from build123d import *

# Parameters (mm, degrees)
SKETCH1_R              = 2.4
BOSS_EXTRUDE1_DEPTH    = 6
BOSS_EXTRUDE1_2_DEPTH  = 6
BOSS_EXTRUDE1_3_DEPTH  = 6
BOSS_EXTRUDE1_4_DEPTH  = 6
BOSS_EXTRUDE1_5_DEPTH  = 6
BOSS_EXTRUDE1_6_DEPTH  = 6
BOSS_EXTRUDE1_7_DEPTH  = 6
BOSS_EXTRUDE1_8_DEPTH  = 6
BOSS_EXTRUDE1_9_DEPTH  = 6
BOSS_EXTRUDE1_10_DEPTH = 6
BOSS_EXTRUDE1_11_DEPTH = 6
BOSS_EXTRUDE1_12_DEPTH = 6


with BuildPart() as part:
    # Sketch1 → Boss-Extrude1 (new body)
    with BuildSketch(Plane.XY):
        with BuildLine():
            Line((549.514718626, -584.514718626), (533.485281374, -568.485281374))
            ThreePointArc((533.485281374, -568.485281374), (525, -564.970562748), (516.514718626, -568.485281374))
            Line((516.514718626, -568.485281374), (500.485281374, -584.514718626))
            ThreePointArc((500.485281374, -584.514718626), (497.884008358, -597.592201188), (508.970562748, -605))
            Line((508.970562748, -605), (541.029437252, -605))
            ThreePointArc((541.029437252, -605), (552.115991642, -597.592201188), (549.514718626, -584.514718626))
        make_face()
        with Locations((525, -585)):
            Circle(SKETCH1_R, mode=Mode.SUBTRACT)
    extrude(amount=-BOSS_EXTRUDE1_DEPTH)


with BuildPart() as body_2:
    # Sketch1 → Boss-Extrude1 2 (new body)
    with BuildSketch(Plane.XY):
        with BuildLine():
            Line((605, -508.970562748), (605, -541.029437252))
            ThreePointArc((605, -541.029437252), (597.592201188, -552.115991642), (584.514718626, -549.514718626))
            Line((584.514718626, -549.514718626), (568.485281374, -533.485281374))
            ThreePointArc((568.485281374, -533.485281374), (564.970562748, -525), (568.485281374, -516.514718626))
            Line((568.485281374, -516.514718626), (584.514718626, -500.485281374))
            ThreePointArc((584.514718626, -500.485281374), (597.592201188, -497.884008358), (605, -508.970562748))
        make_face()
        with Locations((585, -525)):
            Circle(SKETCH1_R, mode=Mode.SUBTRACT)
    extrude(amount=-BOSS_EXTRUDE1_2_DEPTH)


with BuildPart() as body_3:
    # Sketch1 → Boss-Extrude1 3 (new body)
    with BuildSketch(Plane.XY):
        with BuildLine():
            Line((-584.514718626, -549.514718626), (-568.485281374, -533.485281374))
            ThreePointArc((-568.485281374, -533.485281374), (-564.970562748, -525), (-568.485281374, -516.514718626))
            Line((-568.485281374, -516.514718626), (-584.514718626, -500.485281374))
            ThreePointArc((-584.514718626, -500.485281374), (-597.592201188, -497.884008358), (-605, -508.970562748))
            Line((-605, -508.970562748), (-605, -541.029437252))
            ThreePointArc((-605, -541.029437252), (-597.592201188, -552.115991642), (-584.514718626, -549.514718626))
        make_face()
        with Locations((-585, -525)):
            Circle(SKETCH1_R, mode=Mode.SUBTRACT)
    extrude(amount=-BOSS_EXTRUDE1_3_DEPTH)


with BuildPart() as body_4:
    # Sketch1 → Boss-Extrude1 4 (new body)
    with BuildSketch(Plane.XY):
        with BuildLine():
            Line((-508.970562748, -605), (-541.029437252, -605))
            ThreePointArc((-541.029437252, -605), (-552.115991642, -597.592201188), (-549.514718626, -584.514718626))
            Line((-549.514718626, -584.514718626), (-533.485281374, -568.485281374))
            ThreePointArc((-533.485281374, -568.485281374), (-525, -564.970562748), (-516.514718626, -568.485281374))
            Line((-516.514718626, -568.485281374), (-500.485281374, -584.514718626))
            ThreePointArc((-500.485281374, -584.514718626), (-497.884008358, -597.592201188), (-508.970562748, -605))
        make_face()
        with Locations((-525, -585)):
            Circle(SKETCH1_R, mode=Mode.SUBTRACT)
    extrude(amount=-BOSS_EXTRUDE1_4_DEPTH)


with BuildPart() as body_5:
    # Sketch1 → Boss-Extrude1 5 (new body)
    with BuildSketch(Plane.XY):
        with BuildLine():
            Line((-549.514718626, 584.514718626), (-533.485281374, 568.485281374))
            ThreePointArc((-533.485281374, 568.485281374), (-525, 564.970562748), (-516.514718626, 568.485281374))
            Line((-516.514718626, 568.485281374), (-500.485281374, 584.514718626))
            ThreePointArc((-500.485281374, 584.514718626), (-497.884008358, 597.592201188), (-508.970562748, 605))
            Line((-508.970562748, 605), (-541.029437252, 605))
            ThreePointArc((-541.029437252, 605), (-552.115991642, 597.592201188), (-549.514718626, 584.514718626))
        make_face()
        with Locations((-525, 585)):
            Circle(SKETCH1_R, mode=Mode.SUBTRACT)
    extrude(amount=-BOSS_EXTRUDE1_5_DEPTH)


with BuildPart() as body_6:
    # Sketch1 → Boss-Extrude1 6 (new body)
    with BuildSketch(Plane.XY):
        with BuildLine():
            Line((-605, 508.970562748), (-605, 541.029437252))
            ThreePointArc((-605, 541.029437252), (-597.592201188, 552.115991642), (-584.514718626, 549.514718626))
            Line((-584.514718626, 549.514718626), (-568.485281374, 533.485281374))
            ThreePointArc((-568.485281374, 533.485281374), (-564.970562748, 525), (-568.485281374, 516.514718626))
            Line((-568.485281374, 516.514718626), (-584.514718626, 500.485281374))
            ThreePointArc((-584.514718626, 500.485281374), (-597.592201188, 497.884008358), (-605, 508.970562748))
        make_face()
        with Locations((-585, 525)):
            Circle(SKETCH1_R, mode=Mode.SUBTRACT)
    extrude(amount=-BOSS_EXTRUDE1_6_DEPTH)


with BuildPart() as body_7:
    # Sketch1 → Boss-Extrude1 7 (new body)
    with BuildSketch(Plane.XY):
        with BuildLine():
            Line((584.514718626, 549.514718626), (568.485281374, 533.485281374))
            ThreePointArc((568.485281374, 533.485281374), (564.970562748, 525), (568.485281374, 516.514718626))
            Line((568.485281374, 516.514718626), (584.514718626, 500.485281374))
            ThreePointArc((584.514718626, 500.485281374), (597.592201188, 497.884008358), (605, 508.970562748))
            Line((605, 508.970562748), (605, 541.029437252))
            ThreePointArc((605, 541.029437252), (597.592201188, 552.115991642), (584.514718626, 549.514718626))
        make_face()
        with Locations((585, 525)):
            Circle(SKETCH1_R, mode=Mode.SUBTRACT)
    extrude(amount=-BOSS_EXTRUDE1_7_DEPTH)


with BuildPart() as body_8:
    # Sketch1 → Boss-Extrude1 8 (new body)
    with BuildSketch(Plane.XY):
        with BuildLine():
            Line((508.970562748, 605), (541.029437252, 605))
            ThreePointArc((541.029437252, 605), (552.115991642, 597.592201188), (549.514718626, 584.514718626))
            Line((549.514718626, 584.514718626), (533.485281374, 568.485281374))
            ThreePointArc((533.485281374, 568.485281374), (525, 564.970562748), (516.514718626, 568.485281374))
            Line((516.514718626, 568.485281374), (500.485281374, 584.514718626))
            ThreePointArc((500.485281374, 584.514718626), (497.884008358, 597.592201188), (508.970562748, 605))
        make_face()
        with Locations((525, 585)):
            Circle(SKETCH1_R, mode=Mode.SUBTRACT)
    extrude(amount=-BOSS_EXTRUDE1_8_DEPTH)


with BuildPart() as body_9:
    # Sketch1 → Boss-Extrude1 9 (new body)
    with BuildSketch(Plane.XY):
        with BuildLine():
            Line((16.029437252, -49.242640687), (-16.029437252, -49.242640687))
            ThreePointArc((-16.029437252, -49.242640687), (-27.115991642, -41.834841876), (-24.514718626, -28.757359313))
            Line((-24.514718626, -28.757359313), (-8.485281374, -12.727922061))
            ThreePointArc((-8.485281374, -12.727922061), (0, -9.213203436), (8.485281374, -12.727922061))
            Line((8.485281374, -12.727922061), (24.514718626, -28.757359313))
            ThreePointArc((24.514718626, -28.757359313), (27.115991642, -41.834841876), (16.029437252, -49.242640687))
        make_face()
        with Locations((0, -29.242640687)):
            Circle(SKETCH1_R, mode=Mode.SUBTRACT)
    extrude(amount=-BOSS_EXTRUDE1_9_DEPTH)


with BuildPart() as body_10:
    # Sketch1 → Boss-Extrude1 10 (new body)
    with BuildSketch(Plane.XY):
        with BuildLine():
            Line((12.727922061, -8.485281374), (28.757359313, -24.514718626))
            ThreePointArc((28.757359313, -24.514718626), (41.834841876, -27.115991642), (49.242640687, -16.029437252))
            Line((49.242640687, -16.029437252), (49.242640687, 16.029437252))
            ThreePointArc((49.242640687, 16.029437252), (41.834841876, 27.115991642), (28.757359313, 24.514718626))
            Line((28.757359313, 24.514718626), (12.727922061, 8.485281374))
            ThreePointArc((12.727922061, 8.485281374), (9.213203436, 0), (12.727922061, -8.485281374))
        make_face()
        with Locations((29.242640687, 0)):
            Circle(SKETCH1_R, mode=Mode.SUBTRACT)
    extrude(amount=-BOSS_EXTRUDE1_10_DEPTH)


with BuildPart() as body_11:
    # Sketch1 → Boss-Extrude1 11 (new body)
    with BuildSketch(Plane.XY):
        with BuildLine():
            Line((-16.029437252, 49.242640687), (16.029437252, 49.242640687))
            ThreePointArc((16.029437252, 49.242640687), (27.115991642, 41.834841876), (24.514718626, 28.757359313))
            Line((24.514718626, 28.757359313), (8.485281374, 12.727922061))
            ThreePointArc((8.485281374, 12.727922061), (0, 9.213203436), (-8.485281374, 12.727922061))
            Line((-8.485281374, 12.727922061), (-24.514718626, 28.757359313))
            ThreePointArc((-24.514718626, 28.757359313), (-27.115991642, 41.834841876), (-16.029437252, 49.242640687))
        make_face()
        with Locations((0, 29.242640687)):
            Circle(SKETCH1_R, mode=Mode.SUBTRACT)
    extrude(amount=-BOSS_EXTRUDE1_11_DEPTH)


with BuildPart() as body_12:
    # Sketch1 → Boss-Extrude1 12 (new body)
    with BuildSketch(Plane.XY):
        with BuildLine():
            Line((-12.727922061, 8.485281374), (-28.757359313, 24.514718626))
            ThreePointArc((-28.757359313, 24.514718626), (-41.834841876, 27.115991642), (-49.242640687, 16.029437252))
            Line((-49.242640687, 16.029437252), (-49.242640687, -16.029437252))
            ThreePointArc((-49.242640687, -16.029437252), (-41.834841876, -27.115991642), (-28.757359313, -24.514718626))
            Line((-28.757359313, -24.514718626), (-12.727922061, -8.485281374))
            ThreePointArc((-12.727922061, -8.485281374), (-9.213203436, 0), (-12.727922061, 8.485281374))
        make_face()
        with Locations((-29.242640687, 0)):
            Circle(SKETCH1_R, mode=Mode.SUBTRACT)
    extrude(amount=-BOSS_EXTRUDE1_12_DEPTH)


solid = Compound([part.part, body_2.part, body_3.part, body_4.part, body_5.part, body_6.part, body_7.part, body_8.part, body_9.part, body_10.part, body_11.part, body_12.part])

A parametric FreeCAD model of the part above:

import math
import FreeCAD as App
import Part
import Sketcher
from FreeCAD import Vector
Q = App.Units.Quantity

doc = App.newDocument("Part")
body = doc.addObject("PartDesign::Body", "Body")

# Sketch on XY plane
sketch1 = doc.addObject("Sketcher::SketchObject", "Sketch")
body.addObject(sketch1)
sketch1.AttachmentSupport = (doc.XY_Plane, [""])
sketch1.MapMode = "FlatFace"
sketch1.addGeometry([
    Part.LineSegment(Vector(549.5, -584.5, 0), Vector(533.5, -568.5, 0)),  # 0
    Part.ArcOfCircle(Part.Circle(Vector(525, -577, 0), Vector(0, 0, 1), 12), math.radians(45), math.radians(135)),  # 1
    Part.LineSegment(Vector(516.5, -568.5, 0), Vector(500.5, -584.5, 0)),  # 2
    Part.ArcOfCircle(Part.Circle(Vector(509, -593, 0), Vector(0, 0, 1), 12), math.radians(135), math.radians(270)),  # 3
    Part.LineSegment(Vector(509, -605, 0), Vector(541, -605, 0)),  # 4
    Part.ArcOfCircle(Part.Circle(Vector(541, -593, 0), Vector(0, 0, 1), 12), math.radians(-90), math.radians(45)),  # 5
    Part.Circle(Vector(525, -585, 0), Vector(0, 0, 1), 2.4),  # 6
], False)
sketch1.addConstraint([
    Sketcher.Constraint("Tangent", 0, 2, 1, 1),
    Sketcher.Constraint("Tangent", 1, 2, 2, 1),
    Sketcher.Constraint("Tangent", 2, 2, 3, 1),
    Sketcher.Constraint("Tangent", 3, 2, 4, 1),
    Sketcher.Constraint("Tangent", 4, 2, 5, 1),
    Sketcher.Constraint("Tangent", 5, 2, 0, 1),
    Sketcher.Constraint("Horizontal", 4),
    Sketcher.Constraint("Equal", 1, 3),
    Sketcher.Constraint("Equal", 3, 5),
    Sketcher.Constraint("Perpendicular", 0, 2),
    Sketcher.Constraint("Horizontal", 0, 2, 1, 2),
    Sketcher.Constraint("Vertical", 1, 3, 6, 3),
    Sketcher.Constraint("Radius", 1, Q("12 mm")),
    Sketcher.Constraint("Diameter", 6, Q("4.8 mm")),
    Sketcher.Constraint("DistanceX", -1, 1, 1, 3, Q("525 mm")),
    Sketcher.Constraint("DistanceY", 3, 3, -1, 1, Q("593 mm")),
    Sketcher.Constraint("DistanceY", 6, 3, -1, 1, Q("585 mm")),
    Sketcher.Constraint("DistanceX", 2, 2, 0, 2, Q("33 mm")),
])
pad1 = doc.addObject("PartDesign::Pad", "Pad")
body.addObject(pad1)
pad1.Profile = sketch1
pad1.Length = 6
pad1.Reversed = True
body2 = doc.addObject("PartDesign::Body", "Body001")

# Sketch on XY plane
sketch2 = doc.addObject("Sketcher::SketchObject", "Sketch001")
body2.addObject(sketch2)
sketch2.AttachmentSupport = (doc.getObject("XY_Plane001"), [""])
sketch2.MapMode = "FlatFace"
sketch2.addGeometry([
    Part.LineSegment(Vector(605, -541, 0), Vector(605, -509, 0)),  # 0
    Part.ArcOfCircle(Part.Circle(Vector(593, -509, 0), Vector(0, 0, 1), 12), math.radians(0), math.radians(135)),  # 1
    Part.LineSegment(Vector(584.5, -500.5, 0), Vector(568.5, -516.5, 0)),  # 2
    Part.ArcOfCircle(Part.Circle(Vector(577, -525, 0), Vector(0, 0, 1), 12), math.radians(135), math.radians(225)),  # 3
    Part.LineSegment(Vector(568.5, -533.5, 0), Vector(584.5, -549.5, 0)),  # 4
    Part.ArcOfCircle(Part.Circle(Vector(593, -541, 0), Vector(0, 0, 1), 12), math.radians(-135), math.radians(0)),  # 5
    Part.Circle(Vector(585, -525, 0), Vector(0, 0, 1), 2.4),  # 6
], False)
sketch2.addConstraint([
    Sketcher.Constraint("Tangent", 0, 2, 1, 1),
    Sketcher.Constraint("Tangent", 1, 2, 2, 1),
    Sketcher.Constraint("Tangent", 2, 2, 3, 1),
    Sketcher.Constraint("Tangent", 3, 2, 4, 1),
    Sketcher.Constraint("Tangent", 4, 2, 5, 1),
    Sketcher.Constraint("Tangent", 5, 2, 0, 1),
    Sketcher.Constraint("Vertical", 0),
    Sketcher.Constraint("Equal", 1, 3),
    Sketcher.Constraint("Equal", 3, 5),
    Sketcher.Constraint("Perpendicular", 2, 4),
    Sketcher.Constraint("Horizontal", 3, 3, 6, 3),
    Sketcher.Constraint("Vertical", 2, 2, 3, 2),
    Sketcher.Constraint("Radius", 1, Q("12 mm")),
    Sketcher.Constraint("Diameter", 6, Q("4.8 mm")),
    Sketcher.Constraint("DistanceX", -1, 1, 1, 3, Q("593 mm")),
    Sketcher.Constraint("DistanceY", 3, 3, -1, 1, Q("525 mm")),
    Sketcher.Constraint("DistanceX", -1, 1, 6, 3, Q("585 mm")),
    Sketcher.Constraint("DistanceY", 4, 2, 2, 2, Q("33 mm")),
])
pad2 = doc.addObject("PartDesign::Pad", "Pad001")
body2.addObject(pad2)
pad2.Profile = sketch2
pad2.Length = 6
pad2.Reversed = True
body3 = doc.addObject("PartDesign::Body", "Body002")

# Sketch on XY plane
sketch3 = doc.addObject("Sketcher::SketchObject", "Sketch002")
body3.addObject(sketch3)
sketch3.AttachmentSupport = (doc.getObject("XY_Plane002"), [""])
sketch3.MapMode = "FlatFace"
sketch3.addGeometry([
    Part.LineSegment(Vector(-584.5, -549.5, 0), Vector(-568.5, -533.5, 0)),  # 0
    Part.ArcOfCircle(Part.Circle(Vector(-577, -525, 0), Vector(0, 0, 1), 12), math.radians(-45), math.radians(45)),  # 1
    Part.LineSegment(Vector(-568.5, -516.5, 0), Vector(-584.5, -500.5, 0)),  # 2
    Part.ArcOfCircle(Part.Circle(Vector(-593, -509, 0), Vector(0, 0, 1), 12), math.radians(45), math.radians(180)),  # 3
    Part.LineSegment(Vector(-605, -509, 0), Vector(-605, -541, 0)),  # 4
    Part.ArcOfCircle(Part.Circle(Vector(-593, -541, 0), Vector(0, 0, 1), 12), math.radians(180), math.radians(315)),  # 5
    Part.Circle(Vector(-585, -525, 0), Vector(0, 0, 1), 2.4),  # 6
], False)
sketch3.addConstraint([
    Sketcher.Constraint("Tangent", 0, 2, 1, 1),
    Sketcher.Constraint("Tangent", 1, 2, 2, 1),
    Sketcher.Constraint("Tangent", 2, 2, 3, 1),
    Sketcher.Constraint("Tangent", 3, 2, 4, 1),
    Sketcher.Constraint("Tangent", 4, 2, 5, 1),
    Sketcher.Constraint("Tangent", 5, 2, 0, 1),
    Sketcher.Constraint("Vertical", 4),
    Sketcher.Constraint("Equal", 1, 3),
    Sketcher.Constraint("Equal", 3, 5),
    Sketcher.Constraint("Perpendicular", 0, 2),
    Sketcher.Constraint("Horizontal", 1, 3, 6, 3),
    Sketcher.Constraint("Vertical", 0, 2, 1, 2),
    Sketcher.Constraint("Radius", 1, Q("12 mm")),
    Sketcher.Constraint("Diameter", 6, Q("4.8 mm")),
    Sketcher.Constraint("DistanceY", 1, 3, -1, 1, Q("525 mm")),
    Sketcher.Constraint("DistanceX", 3, 3, -1, 1, Q("593 mm")),
    Sketcher.Constraint("DistanceX", 6, 3, -1, 1, Q("585 mm")),
    Sketcher.Constraint("DistanceY", 0, 2, 2, 2, Q("33 mm")),
])
pad3 = doc.addObject("PartDesign::Pad", "Pad002")
body3.addObject(pad3)
pad3.Profile = sketch3
pad3.Length = 6
pad3.Reversed = True
body4 = doc.addObject("PartDesign::Body", "Body003")

# Sketch on XY plane
sketch4 = doc.addObject("Sketcher::SketchObject", "Sketch003")
body4.addObject(sketch4)
sketch4.AttachmentSupport = (doc.getObject("XY_Plane003"), [""])
sketch4.MapMode = "FlatFace"
sketch4.addGeometry([
    Part.LineSegment(Vector(-541, -605, 0), Vector(-509, -605, 0)),  # 0
    Part.ArcOfCircle(Part.Circle(Vector(-509, -593, 0), Vector(0, 0, 1), 12), math.radians(-90), math.radians(45)),  # 1
    Part.LineSegment(Vector(-500.5, -584.5, 0), Vector(-516.5, -568.5, 0)),  # 2
    Part.ArcOfCircle(Part.Circle(Vector(-525, -577, 0), Vector(0, 0, 1), 12), math.radians(45), math.radians(135)),  # 3
    Part.LineSegment(Vector(-533.5, -568.5, 0), Vector(-549.5, -584.5, 0)),  # 4
    Part.ArcOfCircle(Part.Circle(Vector(-541, -593, 0), Vector(0, 0, 1), 12), math.radians(135), math.radians(270)),  # 5
    Part.Circle(Vector(-525, -585, 0), Vector(0, 0, 1), 2.4),  # 6
], False)
sketch4.addConstraint([
    Sketcher.Constraint("Tangent", 0, 2, 1, 1),
    Sketcher.Constraint("Tangent", 1, 2, 2, 1),
    Sketcher.Constraint("Tangent", 2, 2, 3, 1),
    Sketcher.Constraint("Tangent", 3, 2, 4, 1),
    Sketcher.Constraint("Tangent", 4, 2, 5, 1),
    Sketcher.Constraint("Tangent", 5, 2, 0, 1),
    Sketcher.Constraint("Horizontal", 0),
    Sketcher.Constraint("Equal", 1, 3),
    Sketcher.Constraint("Equal", 3, 5),
    Sketcher.Constraint("Perpendicular", 2, 4),
    Sketcher.Constraint("Horizontal", 2, 2, 3, 2),
    Sketcher.Constraint("Vertical", 3, 3, 6, 3),
    Sketcher.Constraint("Radius", 1, Q("12 mm")),
    Sketcher.Constraint("Diameter", 6, Q("4.8 mm")),
    Sketcher.Constraint("DistanceY", 1, 3, -1, 1, Q("593 mm")),
    Sketcher.Constraint("DistanceX", 3, 3, -1, 1, Q("525 mm")),
    Sketcher.Constraint("DistanceY", 6, 3, -1, 1, Q("585 mm")),
    Sketcher.Constraint("DistanceX", 4, 2, 2, 2, Q("33 mm")),
])
pad4 = doc.addObject("PartDesign::Pad", "Pad003")
body4.addObject(pad4)
pad4.Profile = sketch4
pad4.Length = 6
pad4.Reversed = True
body5 = doc.addObject("PartDesign::Body", "Body004")

# Sketch on XY plane
sketch5 = doc.addObject("Sketcher::SketchObject", "Sketch004")
body5.addObject(sketch5)
sketch5.AttachmentSupport = (doc.getObject("XY_Plane004"), [""])
sketch5.MapMode = "FlatFace"
sketch5.addGeometry([
    Part.LineSegment(Vector(-549.5, 584.5, 0), Vector(-533.5, 568.5, 0)),  # 0
    Part.ArcOfCircle(Part.Circle(Vector(-525, 577, 0), Vector(0, 0, 1), 12), math.radians(-135), math.radians(-45)),  # 1
    Part.LineSegment(Vector(-516.5, 568.5, 0), Vector(-500.5, 584.5, 0)),  # 2
    Part.ArcOfCircle(Part.Circle(Vector(-509, 593, 0), Vector(0, 0, 1), 12), math.radians(-45), math.radians(90)),  # 3
    Part.LineSegment(Vector(-509, 605, 0), Vector(-541, 605, 0)),  # 4
    Part.ArcOfCircle(Part.Circle(Vector(-541, 593, 0), Vector(0, 0, 1), 12), math.radians(90), math.radians(225)),  # 5
    Part.Circle(Vector(-525, 585, 0), Vector(0, 0, 1), 2.4),  # 6
], False)
sketch5.addConstraint([
    Sketcher.Constraint("Tangent", 0, 2, 1, 1),
    Sketcher.Constraint("Tangent", 1, 2, 2, 1),
    Sketcher.Constraint("Tangent", 2, 2, 3, 1),
    Sketcher.Constraint("Tangent", 3, 2, 4, 1),
    Sketcher.Constraint("Tangent", 4, 2, 5, 1),
    Sketcher.Constraint("Tangent", 5, 2, 0, 1),
    Sketcher.Constraint("Horizontal", 4),
    Sketcher.Constraint("Equal", 1, 3),
    Sketcher.Constraint("Equal", 3, 5),
    Sketcher.Constraint("Perpendicular", 0, 2),
    Sketcher.Constraint("Horizontal", 0, 2, 1, 2),
    Sketcher.Constraint("Vertical", 1, 3, 6, 3),
    Sketcher.Constraint("Radius", 1, Q("12 mm")),
    Sketcher.Constraint("Diameter", 6, Q("4.8 mm")),
    Sketcher.Constraint("DistanceX", 1, 3, -1, 1, Q("525 mm")),
    Sketcher.Constraint("DistanceY", -1, 1, 3, 3, Q("593 mm")),
    Sketcher.Constraint("DistanceY", -1, 1, 6, 3, Q("585 mm")),
    Sketcher.Constraint("DistanceX", 0, 2, 2, 2, Q("33 mm")),
])
pad5 = doc.addObject("PartDesign::Pad", "Pad004")
body5.addObject(pad5)
pad5.Profile = sketch5
pad5.Length = 6
pad5.Reversed = True
body6 = doc.addObject("PartDesign::Body", "Body005")

# Sketch on XY plane
sketch6 = doc.addObject("Sketcher::SketchObject", "Sketch005")
body6.addObject(sketch6)
sketch6.AttachmentSupport = (doc.getObject("XY_Plane005"), [""])
sketch6.MapMode = "FlatFace"
sketch6.addGeometry([
    Part.LineSegment(Vector(-605, 541, 0), Vector(-605, 509, 0)),  # 0
    Part.ArcOfCircle(Part.Circle(Vector(-593, 509, 0), Vector(0, 0, 1), 12), math.radians(180), math.radians(315)),  # 1
    Part.LineSegment(Vector(-584.5, 500.5, 0), Vector(-568.5, 516.5, 0)),  # 2
    Part.ArcOfCircle(Part.Circle(Vector(-577, 525, 0), Vector(0, 0, 1), 12), math.radians(-45), math.radians(45)),  # 3
    Part.LineSegment(Vector(-568.5, 533.5, 0), Vector(-584.5, 549.5, 0)),  # 4
    Part.ArcOfCircle(Part.Circle(Vector(-593, 541, 0), Vector(0, 0, 1), 12), math.radians(45), math.radians(180)),  # 5
    Part.Circle(Vector(-585, 525, 0), Vector(0, 0, 1), 2.4),  # 6
], False)
sketch6.addConstraint([
    Sketcher.Constraint("Tangent", 0, 2, 1, 1),
    Sketcher.Constraint("Tangent", 1, 2, 2, 1),
    Sketcher.Constraint("Tangent", 2, 2, 3, 1),
    Sketcher.Constraint("Tangent", 3, 2, 4, 1),
    Sketcher.Constraint("Tangent", 4, 2, 5, 1),
    Sketcher.Constraint("Tangent", 5, 2, 0, 1),
    Sketcher.Constraint("Vertical", 0),
    Sketcher.Constraint("Equal", 1, 3),
    Sketcher.Constraint("Equal", 3, 5),
    Sketcher.Constraint("Perpendicular", 2, 4),
    Sketcher.Constraint("Horizontal", 3, 3, 6, 3),
    Sketcher.Constraint("Vertical", 2, 2, 3, 2),
    Sketcher.Constraint("Radius", 1, Q("12 mm")),
    Sketcher.Constraint("Diameter", 6, Q("4.8 mm")),
    Sketcher.Constraint("DistanceX", 1, 3, -1, 1, Q("593 mm")),
    Sketcher.Constraint("DistanceY", -1, 1, 3, 3, Q("525 mm")),
    Sketcher.Constraint("DistanceX", 6, 3, -1, 1, Q("585 mm")),
    Sketcher.Constraint("DistanceY", 2, 2, 4, 2, Q("33 mm")),
])
pad6 = doc.addObject("PartDesign::Pad", "Pad005")
body6.addObject(pad6)
pad6.Profile = sketch6
pad6.Length = 6
pad6.Reversed = True
body7 = doc.addObject("PartDesign::Body", "Body006")

# Sketch on XY plane
sketch7 = doc.addObject("Sketcher::SketchObject", "Sketch006")
body7.addObject(sketch7)
sketch7.AttachmentSupport = (doc.getObject("XY_Plane006"), [""])
sketch7.MapMode = "FlatFace"
sketch7.addGeometry([
    Part.LineSegment(Vector(584.5, 549.5, 0), Vector(568.5, 533.5, 0)),  # 0
    Part.ArcOfCircle(Part.Circle(Vector(577, 525, 0), Vector(0, 0, 1), 12), math.radians(135), math.radians(225)),  # 1
    Part.LineSegment(Vector(568.5, 516.5, 0), Vector(584.5, 500.5, 0)),  # 2
    Part.ArcOfCircle(Part.Circle(Vector(593, 509, 0), Vector(0, 0, 1), 12), math.radians(-135), math.radians(0)),  # 3
    Part.LineSegment(Vector(605, 509, 0), Vector(605, 541, 0)),  # 4
    Part.ArcOfCircle(Part.Circle(Vector(593, 541, 0), Vector(0, 0, 1), 12), math.radians(0), math.radians(135)),  # 5
    Part.Circle(Vector(585, 525, 0), Vector(0, 0, 1), 2.4),  # 6
], False)
sketch7.addConstraint([
    Sketcher.Constraint("Tangent", 0, 2, 1, 1),
    Sketcher.Constraint("Tangent", 1, 2, 2, 1),
    Sketcher.Constraint("Tangent", 2, 2, 3, 1),
    Sketcher.Constraint("Tangent", 3, 2, 4, 1),
    Sketcher.Constraint("Tangent", 4, 2, 5, 1),
    Sketcher.Constraint("Tangent", 5, 2, 0, 1),
    Sketcher.Constraint("Vertical", 4),
    Sketcher.Constraint("Equal", 1, 3),
    Sketcher.Constraint("Equal", 3, 5),
    Sketcher.Constraint("Perpendicular", 0, 2),
    Sketcher.Constraint("Horizontal", 1, 3, 6, 3),
    Sketcher.Constraint("Vertical", 0, 2, 1, 2),
    Sketcher.Constraint("Radius", 1, Q("12 mm")),
    Sketcher.Constraint("Diameter", 6, Q("4.8 mm")),
    Sketcher.Constraint("DistanceY", -1, 1, 1, 3, Q("525 mm")),
    Sketcher.Constraint("DistanceX", -1, 1, 3, 3, Q("593 mm")),
    Sketcher.Constraint("DistanceX", -1, 1, 6, 3, Q("585 mm")),
    Sketcher.Constraint("DistanceY", 2, 2, 0, 2, Q("33 mm")),
])
pad7 = doc.addObject("PartDesign::Pad", "Pad006")
body7.addObject(pad7)
pad7.Profile = sketch7
pad7.Length = 6
pad7.Reversed = True
body8 = doc.addObject("PartDesign::Body", "Body007")

# Sketch on XY plane
sketch8 = doc.addObject("Sketcher::SketchObject", "Sketch007")
body8.addObject(sketch8)
sketch8.AttachmentSupport = (doc.getObject("XY_Plane007"), [""])
sketch8.MapMode = "FlatFace"
sketch8.addGeometry([
    Part.LineSegment(Vector(541, 605, 0), Vector(509, 605, 0)),  # 0
    Part.ArcOfCircle(Part.Circle(Vector(509, 593, 0), Vector(0, 0, 1), 12), math.radians(90), math.radians(225)),  # 1
    Part.LineSegment(Vector(500.5, 584.5, 0), Vector(516.5, 568.5, 0)),  # 2
    Part.ArcOfCircle(Part.Circle(Vector(525, 577, 0), Vector(0, 0, 1), 12), math.radians(-135), math.radians(-45)),  # 3
    Part.LineSegment(Vector(533.5, 568.5, 0), Vector(549.5, 584.5, 0)),  # 4
    Part.ArcOfCircle(Part.Circle(Vector(541, 593, 0), Vector(0, 0, 1), 12), math.radians(-45), math.radians(90)),  # 5
    Part.Circle(Vector(525, 585, 0), Vector(0, 0, 1), 2.4),  # 6
], False)
sketch8.addConstraint([
    Sketcher.Constraint("Tangent", 0, 2, 1, 1),
    Sketcher.Constraint("Tangent", 1, 2, 2, 1),
    Sketcher.Constraint("Tangent", 2, 2, 3, 1),
    Sketcher.Constraint("Tangent", 3, 2, 4, 1),
    Sketcher.Constraint("Tangent", 4, 2, 5, 1),
    Sketcher.Constraint("Tangent", 5, 2, 0, 1),
    Sketcher.Constraint("Horizontal", 0),
    Sketcher.Constraint("Equal", 1, 3),
    Sketcher.Constraint("Equal", 3, 5),
    Sketcher.Constraint("Perpendicular", 2, 4),
    Sketcher.Constraint("Horizontal", 2, 2, 3, 2),
    Sketcher.Constraint("Vertical", 3, 3, 6, 3),
    Sketcher.Constraint("Radius", 1, Q("12 mm")),
    Sketcher.Constraint("Diameter", 6, Q("4.8 mm")),
    Sketcher.Constraint("DistanceY", -1, 1, 1, 3, Q("593 mm")),
    Sketcher.Constraint("DistanceX", -1, 1, 3, 3, Q("525 mm")),
    Sketcher.Constraint("DistanceY", -1, 1, 6, 3, Q("585 mm")),
    Sketcher.Constraint("DistanceX", 2, 2, 4, 2, Q("33 mm")),
])
pad8 = doc.addObject("PartDesign::Pad", "Pad007")
body8.addObject(pad8)
pad8.Profile = sketch8
pad8.Length = 6
pad8.Reversed = True
body9 = doc.addObject("PartDesign::Body", "Body008")

# Sketch on XY plane
sketch9 = doc.addObject("Sketcher::SketchObject", "Sketch008")
body9.addObject(sketch9)
sketch9.AttachmentSupport = (doc.getObject("XY_Plane008"), [""])
sketch9.MapMode = "FlatFace"
sketch9.addGeometry([
    Part.LineSegment(Vector(-16, -49.2, 0), Vector(16, -49.2, 0)),  # 0
    Part.ArcOfCircle(Part.Circle(Vector(16, -37.2, 0), Vector(0, 0, 1), 12), math.radians(-90), math.radians(45)),  # 1
    Part.LineSegment(Vector(24.5, -28.8, 0), Vector(8.5, -12.7, 0)),  # 2
    Part.ArcOfCircle(Part.Circle(Vector(0, -21.2, 0), Vector(0, 0, 1), 12), math.radians(45), math.radians(135)),  # 3
    Part.LineSegment(Vector(-8.5, -12.7, 0), Vector(-24.5, -28.8, 0)),  # 4
    Part.ArcOfCircle(Part.Circle(Vector(-16, -37.2, 0), Vector(0, 0, 1), 12), math.radians(135), math.radians(270)),  # 5
    Part.Circle(Vector(0, -29.2, 0), Vector(0, 0, 1), 2.4),  # 6
], False)
sketch9.addConstraint([
    Sketcher.Constraint("Tangent", 0, 2, 1, 1),
    Sketcher.Constraint("Tangent", 1, 2, 2, 1),
    Sketcher.Constraint("Tangent", 2, 2, 3, 1),
    Sketcher.Constraint("Tangent", 3, 2, 4, 1),
    Sketcher.Constraint("Tangent", 4, 2, 5, 1),
    Sketcher.Constraint("Tangent", 5, 2, 0, 1),
    Sketcher.Constraint("Horizontal", 0),
    Sketcher.Constraint("Equal", 1, 3),
    Sketcher.Constraint("Equal", 3, 5),
    Sketcher.Constraint("Symmetric", 2, 2, 3, 2, -2),
    Sketcher.Constraint("PointOnObject", 6, 3, -2),
    Sketcher.Constraint("Perpendicular", 2, 4),
    Sketcher.Constraint("Radius", 1, Q("12 mm")),
    Sketcher.Constraint("Diameter", 6, Q("4.8 mm")),
    Sketcher.Constraint("DistanceY", 1, 3, 6, 3, Q("8 mm")),
    Sketcher.Constraint("DistanceX", 4, 2, 2, 2, Q("33 mm")),
    Sketcher.Constraint("DistanceY", 1, 3, -1, 1, Q("37.242641 mm")),
])
pad9 = doc.addObject("PartDesign::Pad", "Pad008")
body9.addObject(pad9)
pad9.Profile = sketch9
pad9.Length = 6
pad9.Reversed = True
body10 = doc.addObject("PartDesign::Body", "Body009")

# Sketch on XY plane
sketch10 = doc.addObject("Sketcher::SketchObject", "Sketch009")
body10.addObject(sketch10)
sketch10.AttachmentSupport = (doc.getObject("XY_Plane009"), [""])
sketch10.MapMode = "FlatFace"
sketch10.addGeometry([
    Part.LineSegment(Vector(12.7, -8.5, 0), Vector(28.8, -24.5, 0)),  # 0
    Part.ArcOfCircle(Part.Circle(Vector(37.2, -16, 0), Vector(0, 0, 1), 12), math.radians(-135), math.radians(0)),  # 1
    Part.LineSegment(Vector(49.2, -16, 0), Vector(49.2, 16, 0)),  # 2
    Part.ArcOfCircle(Part.Circle(Vector(37.2, 16, 0), Vector(0, 0, 1), 12), math.radians(0), math.radians(135)),  # 3
    Part.LineSegment(Vector(28.8, 24.5, 0), Vector(12.7, 8.5, 0)),  # 4
    Part.ArcOfCircle(Part.Circle(Vector(21.2, 0, 0), Vector(0, 0, 1), 12), math.radians(135), math.radians(225)),  # 5
    Part.Circle(Vector(29.2, 0, 0), Vector(0, 0, 1), 2.4),  # 6
], False)
sketch10.addConstraint([
    Sketcher.Constraint("Tangent", 0, 2, 1, 1),
    Sketcher.Constraint("Tangent", 1, 2, 2, 1),
    Sketcher.Constraint("Tangent", 2, 2, 3, 1),
    Sketcher.Constraint("Tangent", 3, 2, 4, 1),
    Sketcher.Constraint("Tangent", 4, 2, 5, 1),
    Sketcher.Constraint("Tangent", 5, 2, 0, 1),
    Sketcher.Constraint("Vertical", 2),
    Sketcher.Constraint("Equal", 1, 3),
    Sketcher.Constraint("Equal", 3, 5),
    Sketcher.Constraint("Symmetric", 0, 2, 3, 2, -1),
    Sketcher.Constraint("PointOnObject", 6, 3, -1),
    Sketcher.Constraint("Perpendicular", 0, 4),
    Sketcher.Constraint("Radius", 1, Q("12 mm")),
    Sketcher.Constraint("Diameter", 6, Q("4.8 mm")),
    Sketcher.Constraint("DistanceX", 6, 3, 1, 3, Q("8 mm")),
    Sketcher.Constraint("DistanceY", 2, 1, 2, 2, Q("32.058875 mm")),
    Sketcher.Constraint("DistanceX", -1, 1, 1, 3, Q("37.242641 mm")),
])
pad10 = doc.addObject("PartDesign::Pad", "Pad009")
body10.addObject(pad10)
pad10.Profile = sketch10
pad10.Length = 6
pad10.Reversed = True
body11 = doc.addObject("PartDesign::Body", "Body010")

# Sketch on XY plane
sketch11 = doc.addObject("Sketcher::SketchObject", "Sketch010")
body11.addObject(sketch11)
sketch11.AttachmentSupport = (doc.getObject("XY_Plane010"), [""])
sketch11.MapMode = "FlatFace"
sketch11.addGeometry([
    Part.LineSegment(Vector(16, 49.2, 0), Vector(-16, 49.2, 0)),  # 0
    Part.ArcOfCircle(Part.Circle(Vector(-16, 37.2, 0), Vector(0, 0, 1), 12), math.radians(90), math.radians(225)),  # 1
    Part.LineSegment(Vector(-24.5, 28.8, 0), Vector(-8.5, 12.7, 0)),  # 2
    Part.ArcOfCircle(Part.Circle(Vector(0, 21.2, 0), Vector(0, 0, 1), 12), math.radians(-135), math.radians(-45)),  # 3
    Part.LineSegment(Vector(8.5, 12.7, 0), Vector(24.5, 28.8, 0)),  # 4
    Part.ArcOfCircle(Part.Circle(Vector(16, 37.2, 0), Vector(0, 0, 1), 12), math.radians(-45), math.radians(90)),  # 5
    Part.Circle(Vector(0, 29.2, 0), Vector(0, 0, 1), 2.4),  # 6
], False)
sketch11.addConstraint([
    Sketcher.Constraint("Tangent", 0, 2, 1, 1),
    Sketcher.Constraint("Tangent", 1, 2, 2, 1),
    Sketcher.Constraint("Tangent", 2, 2, 3, 1),
    Sketcher.Constraint("Tangent", 3, 2, 4, 1),
    Sketcher.Constraint("Tangent", 4, 2, 5, 1),
    Sketcher.Constraint("Tangent", 5, 2, 0, 1),
    Sketcher.Constraint("Horizontal", 0),
    Sketcher.Constraint("Equal", 1, 3),
    Sketcher.Constraint("Equal", 3, 5),
    Sketcher.Constraint("Symmetric", 2, 2, 3, 2, -2),
    Sketcher.Constraint("PointOnObject", 6, 3, -2),
    Sketcher.Constraint("Perpendicular", 2, 4),
    Sketcher.Constraint("Radius", 1, Q("12 mm")),
    Sketcher.Constraint("Diameter", 6, Q("4.8 mm")),
    Sketcher.Constraint("DistanceY", 6, 3, 1, 3, Q("8 mm")),
    Sketcher.Constraint("DistanceX", 2, 2, 4, 2, Q("33 mm")),
    Sketcher.Constraint("DistanceY", -1, 1, 1, 3, Q("37.242641 mm")),
])
pad11 = doc.addObject("PartDesign::Pad", "Pad010")
body11.addObject(pad11)
pad11.Profile = sketch11
pad11.Length = 6
pad11.Reversed = True
body12 = doc.addObject("PartDesign::Body", "Body011")

# Sketch on XY plane
sketch12 = doc.addObject("Sketcher::SketchObject", "Sketch011")
body12.addObject(sketch12)
sketch12.AttachmentSupport = (doc.getObject("XY_Plane011"), [""])
sketch12.MapMode = "FlatFace"
sketch12.addGeometry([
    Part.LineSegment(Vector(-12.7, 8.5, 0), Vector(-28.8, 24.5, 0)),  # 0
    Part.ArcOfCircle(Part.Circle(Vector(-37.2, 16, 0), Vector(0, 0, 1), 12), math.radians(45), math.radians(180)),  # 1
    Part.LineSegment(Vector(-49.2, 16, 0), Vector(-49.2, -16, 0)),  # 2
    Part.ArcOfCircle(Part.Circle(Vector(-37.2, -16, 0), Vector(0, 0, 1), 12), math.radians(180), math.radians(315)),  # 3
    Part.LineSegment(Vector(-28.8, -24.5, 0), Vector(-12.7, -8.5, 0)),  # 4
    Part.ArcOfCircle(Part.Circle(Vector(-21.2, 0, 0), Vector(0, 0, 1), 12), math.radians(-45), math.radians(45)),  # 5
    Part.Circle(Vector(-29.2, 0, 0), Vector(0, 0, 1), 2.4),  # 6
], False)
sketch12.addConstraint([
    Sketcher.Constraint("Tangent", 0, 2, 1, 1),
    Sketcher.Constraint("Tangent", 1, 2, 2, 1),
    Sketcher.Constraint("Tangent", 2, 2, 3, 1),
    Sketcher.Constraint("Tangent", 3, 2, 4, 1),
    Sketcher.Constraint("Tangent", 4, 2, 5, 1),
    Sketcher.Constraint("Tangent", 5, 2, 0, 1),
    Sketcher.Constraint("Vertical", 2),
    Sketcher.Constraint("Equal", 1, 3),
    Sketcher.Constraint("Equal", 3, 5),
    Sketcher.Constraint("Symmetric", 0, 2, 3, 2, -1),
    Sketcher.Constraint("PointOnObject", 6, 3, -1),
    Sketcher.Constraint("Perpendicular", 0, 4),
    Sketcher.Constraint("Radius", 1, Q("12 mm")),
    Sketcher.Constraint("Diameter", 6, Q("4.8 mm")),
    Sketcher.Constraint("DistanceX", 1, 3, 6, 3, Q("8 mm")),
    Sketcher.Constraint("DistanceY", 2, 2, 2, 1, Q("32.058875 mm")),
    Sketcher.Constraint("DistanceX", 1, 3, -1, 1, Q("37.242641 mm")),
])
pad12 = doc.addObject("PartDesign::Pad", "Pad011")
body12.addObject(pad12)
pad12.Profile = sketch12
pad12.Length = 6
pad12.Reversed = True

doc.recompute()
